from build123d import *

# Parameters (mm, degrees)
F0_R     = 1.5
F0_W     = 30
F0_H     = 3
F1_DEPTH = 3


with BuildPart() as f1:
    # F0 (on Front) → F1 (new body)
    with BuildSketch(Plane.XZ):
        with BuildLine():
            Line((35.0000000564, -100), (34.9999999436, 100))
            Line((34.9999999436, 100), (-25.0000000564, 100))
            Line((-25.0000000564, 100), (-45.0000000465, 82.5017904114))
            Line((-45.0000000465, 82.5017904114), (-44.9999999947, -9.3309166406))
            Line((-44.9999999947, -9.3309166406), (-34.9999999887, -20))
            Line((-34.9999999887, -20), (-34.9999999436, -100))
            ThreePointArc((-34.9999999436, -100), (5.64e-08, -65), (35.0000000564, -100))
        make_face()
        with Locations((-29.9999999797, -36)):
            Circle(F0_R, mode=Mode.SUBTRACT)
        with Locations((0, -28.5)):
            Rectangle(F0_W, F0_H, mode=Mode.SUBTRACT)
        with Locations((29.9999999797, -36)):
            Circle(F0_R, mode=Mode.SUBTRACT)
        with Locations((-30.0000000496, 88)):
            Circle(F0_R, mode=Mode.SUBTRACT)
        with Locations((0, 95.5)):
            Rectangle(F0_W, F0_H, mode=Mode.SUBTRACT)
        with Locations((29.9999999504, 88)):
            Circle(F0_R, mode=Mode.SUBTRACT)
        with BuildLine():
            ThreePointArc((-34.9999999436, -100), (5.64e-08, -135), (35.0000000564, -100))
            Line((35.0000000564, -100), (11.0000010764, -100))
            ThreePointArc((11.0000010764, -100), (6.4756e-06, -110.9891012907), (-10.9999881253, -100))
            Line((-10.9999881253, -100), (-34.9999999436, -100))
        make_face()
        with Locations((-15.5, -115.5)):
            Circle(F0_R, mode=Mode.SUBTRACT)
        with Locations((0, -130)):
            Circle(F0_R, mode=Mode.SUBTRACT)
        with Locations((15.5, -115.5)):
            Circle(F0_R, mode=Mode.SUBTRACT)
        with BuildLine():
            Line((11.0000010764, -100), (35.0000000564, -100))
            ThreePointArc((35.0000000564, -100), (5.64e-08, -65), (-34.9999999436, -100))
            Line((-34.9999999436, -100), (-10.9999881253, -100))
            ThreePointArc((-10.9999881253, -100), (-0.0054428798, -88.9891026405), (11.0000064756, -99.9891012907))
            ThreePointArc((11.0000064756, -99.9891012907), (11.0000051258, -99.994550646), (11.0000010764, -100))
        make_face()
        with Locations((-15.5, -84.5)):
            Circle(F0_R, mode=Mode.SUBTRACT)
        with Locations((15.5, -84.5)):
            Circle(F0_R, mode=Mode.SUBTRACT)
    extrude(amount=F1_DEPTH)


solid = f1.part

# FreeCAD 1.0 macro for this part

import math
import FreeCAD as App
import Part
import Sketcher

V = App.Vector
Q = App.Units.Quantity


def add_polygon(sketch, points):
    """Adds a closed chain of lines whose ends are joined by coincident constraints."""
    first, n = sketch.GeometryCount, len(points)
    for a, b in zip(points, points[1:] + points[:1]):
        sketch.addGeometry(Part.LineSegment(App.Vector(*a, 0), App.Vector(*b, 0)), False)
    for i in range(n):
        sketch.addConstraint(Sketcher.Constraint("Coincident", first + i, 2, first + (i + 1) % n, 1))

doc = App.newDocument("Part")
body = doc.addObject("PartDesign::Body", "Body")

sketch1 = body.newObject("Sketcher::SketchObject", "Sketch")
sketch1.AttachmentSupport = (doc.getObject("XZ_Plane"), [""])
sketch1.MapMode = "FlatFace"
sketch1.addGeometry(Part.LineSegment(V(35, -100, 0), V(35, 100, 0)), False)
sketch1.addGeometry(Part.LineSegment(V(35, 100, 0), V(-25, 100, 0)), False)
sketch1.addGeometry(Part.LineSegment(V(-25, 100, 0), V(-45, 82.502, 0)), False)
sketch1.addGeometry(Part.LineSegment(V(-45, 82.502, 0), V(-45, -9.331, 0)), False)
sketch1.addGeometry(Part.LineSegment(V(-45, -9.331, 0), V(-35, -20, 0)), False)
sketch1.addGeometry(Part.LineSegment(V(-35, -20, 0), V(-35, -100, 0)), False)
sketch1.addGeometry(Part.ArcOfCircle(Part.Circle(V(0, -100, 0), V(0, 0, 1), 35), math.radians(180), math.radians(360)), False)
sketch1.addGeometry(Part.Circle(V(-15.5, -115.5, 0), V(0, 0, 1), 1.5), False)
sketch1.addGeometry(Part.Circle(V(-15.5, -84.5, 0), V(0, 0, 1), 1.5), False)
sketch1.addGeometry(Part.Circle(V(-30, -36, 0), V(0, 0, 1), 1.5), False)
sketch1.addGeometry(Part.Circle(V(0, -130, 0), V(0, 0, 1), 1.5), False)
sketch1.addGeometry(Part.Circle(V(15.5, -115.5, 0), V(0, 0, 1), 1.5), False)
sketch1.addGeometry(Part.ArcOfCircle(Part.Circle(V(0, -99.989, 0), V(0, 0, 1), 11), math.radians(-0.06), math.radians(0)), False)
sketch1.addGeometry(Part.ArcOfCircle(Part.Circle(V(0, -99.989, 0), V(0, 0, 1), 11), math.radians(-180), math.radians(0)), False)
sketch1.addGeometry(Part.ArcOfCircle(Part.Circle(V(0, -99.989, 0), V(0, 0, 1), 11), math.radians(0), math.radians(180)), False)
sketch1.addGeometry(Part.Circle(V(15.5, -84.5, 0), V(0, 0, 1), 1.5), False)
add_polygon(sketch1, [(15, -30), (-15, -30), (-15, -27), (15, -27)])
sketch1.addGeometry(Part.Circle(V(30, -36, 0), V(0, 0, 1), 1.5), False)
sketch1.addGeometry(Part.Circle(V(-30, 88, 0), V(0, 0, 1), 1.5), False)
add_polygon(sketch1, [(15, 94), (-15, 94), (-15, 97), (15, 97)])
sketch1.addGeometry(Part.Circle(V(30, 88, 0), V(0, 0, 1), 1.5), False)
sketch1.addConstraint(Sketcher.Constraint("Coincident", 0, 2, 1, 1))
sketch1.addConstraint(Sketcher.Constraint("Coincident", 1, 2, 2, 1))
sketch1.addConstraint(Sketcher.Constraint("Coincident", 2, 2, 3, 1))
sketch1.addConstraint(Sketcher.Constraint("Coincident", 3, 2, 4, 1))
sketch1.addConstraint(Sketcher.Constraint("Coincident", 4, 2, 5, 1))
sketch1.addConstraint(Sketcher.Constraint("Tangent", 5, 2, 6, 1))
sketch1.addConstraint(Sketcher.Constraint("Tangent", 6, 2, 0, 1))
sketch1.addConstraint(Sketcher.Constraint("Tangent", 12, 1, 13, 2))
sketch1.addConstraint(Sketcher.Constraint("Tangent", 13, 1, 14, 2))
sketch1.addConstraint(Sketcher.Constraint("Coincident", 14, 1, 12, 2))
sketch1.addConstraint(Sketcher.Constraint("Vertical", 0))
sketch1.addConstraint(Sketcher.Constraint("Horizontal", 1))
sketch1.addConstraint(Sketcher.Constraint("Vertical", 3))
sketch1.addConstraint(Sketcher.Constraint("Vertical", 5))
sketch1.addConstraint(Sketcher.Constraint("Horizontal", 16))
sketch1.addConstraint(Sketcher.Constraint("Vertical", 17))
sketch1.addConstraint(Sketcher.Constraint("Horizontal", 18))
sketch1.addConstraint(Sketcher.Constraint("Vertical", 19))
sketch1.addConstraint(Sketcher.Constraint("Horizontal", 22))
sketch1.addConstraint(Sketcher.Constraint("Vertical", 23))
sketch1.addConstraint(Sketcher.Constraint("Horizontal", 24))
sketch1.addConstraint(Sketcher.Constraint("Vertical", 25))
sketch1.addConstraint(Sketcher.Constraint("Equal", 7, 8))
sketch1.addConstraint(Sketcher.Constraint("Equal", 8, 9))
sketch1.addConstraint(Sketcher.Constraint("Equal", 9, 10))
sketch1.addConstraint(Sketcher.Constraint("Equal", 10, 11))
sketch1.addConstraint(Sketcher.Constraint("Equal", 11, 15))
sketch1.addConstraint(Sketcher.Constraint("Equal", 15, 20))
sketch1.addConstraint(Sketcher.Constraint("Equal", 20, 21))
sketch1.addConstraint(Sketcher.Constraint("Equal", 21, 26))
sketch1.addConstraint(Sketcher.Constraint("Symmetric", 0, 2, 5, 2, -1, 1))
sketch1.addConstraint(Sketcher.Constraint("Symmetric", 7, 3, 11, 3, -2))
sketch1.addConstraint(Sketcher.Constraint("Symmetric", 8, 3, 15, 3, -2))
sketch1.addConstraint(Sketcher.Constraint("Symmetric", 9, 3, 20, 3, -2))
sketch1.addConstraint(Sketcher.Constraint("Symmetric", 21, 3, 26, 3, -2))
sketch1.addConstraint(Sketcher.Constraint("PointOnObject", 10, 3, -2))
sketch1.addConstraint(Sketcher.Constraint("Horizontal", 6, 2, 12, 1))
sketch1.addConstraint(Sketcher.Constraint("Horizontal", 12, 1, 13, 1))
sketch1.addConstraint(Sketcher.Constraint("Horizontal", 13, 3, 14, 1))
sketch1.addConstraint(Sketcher.Constraint("Vertical", 7, 3, 8, 3))
sketch1.addConstraint(Sketcher.Constraint("Vertical", 9, 3, 21, 3))
sketch1.addConstraint(Sketcher.Constraint("Vertical", 17, 2, 22, 2))
sketch1.addConstraint(Sketcher.Constraint("Vertical", 19, 2, 24, 2))
sketch1.addConstraint(Sketcher.Constraint("Equal", 19, 23))
sketch1.addConstraint(Sketcher.Constraint("Diameter", 7, Q("3 mm")))
sketch1.addConstraint(Sketcher.Constraint("Radius", 6, Q("35 mm")))
sketch1.addConstraint(Sketcher.Constraint("Radius", 13, Q("11 mm")))
sketch1.addConstraint(Sketcher.Constraint("DistanceX", 1, 2, 1, 1, Q("60 mm")))
sketch1.addConstraint(Sketcher.Constraint("DistanceX", 16, 2, 16, 1, Q("30 mm")))
sketch1.addConstraint(Sketcher.Constraint("DistanceY", 0, 1, 0, 2, Q("200 mm")))
sketch1.addConstraint(Sketcher.Constraint("DistanceY", 5, 2, 5, 1, Q("80 mm")))
sketch1.addConstraint(Sketcher.Constraint("DistanceY", 17, 1, 17, 2, Q("3 mm")))
sketch1.addConstraint(Sketcher.Constraint("DistanceX", 9, 3, -1, 1, Q("30 mm")))
sketch1.addConstraint(Sketcher.Constraint("DistanceY", 9, 3, -1, 1, Q("36 mm")))
sketch1.addConstraint(Sketcher.Constraint("DistanceY", 10, 3, -1, 1, Q("130 mm")))
sketch1.addConstraint(Sketcher.Constraint("DistanceY", -1, 1, 21, 3, Q("88 mm")))
sketch1.addConstraint(Sketcher.Constraint("DistanceX", 2, 2, -1, 1, Q("45 mm")))
sketch1.addConstraint(Sketcher.Constraint("DistanceX", -1, 1, 12, 1, Q("11.000001 mm")))
sketch1.addConstraint(Sketcher.Constraint("DistanceX", 16, 2, -1, 1, Q("15 mm")))
sketch1.addConstraint(Sketcher.Constraint("DistanceY", 16, 2, -1, 1, Q("30 mm")))
sketch1.addConstraint(Sketcher.Constraint("DistanceY", -1, 1, 22, 2, Q("94 mm")))
sketch1.addConstraint(Sketcher.Constraint("DistanceY", 7, 3, 8, 3, Q("31 mm")))
sketch1.addConstraint(Sketcher.Constraint("DistanceX", 7, 3, 11, 3, Q("31 mm")))
sketch1.addConstraint(Sketcher.Constraint("DistanceY", 7, 3, -1, 1, Q("115.5 mm")))
sketch1.addConstraint(Sketcher.Constraint("Radius", 12, Q("10.999953 mm")))
sketch1.addConstraint(Sketcher.Constraint("DistanceY", 12, 3, -1, 1, Q("99.989101 mm")))
sketch1.addConstraint(Sketcher.Constraint("DistanceY", 3, 2, 3, 1, Q("91.832707 mm")))
sketch1.addConstraint(Sketcher.Constraint("DistanceY", -1, 1, 2, 2, Q("82.50179 mm")))
pad1 = body.newObject("PartDesign::Pad", "Pad")
pad1.Profile = sketch1
pad1.Length = 3

doc.recompute()
